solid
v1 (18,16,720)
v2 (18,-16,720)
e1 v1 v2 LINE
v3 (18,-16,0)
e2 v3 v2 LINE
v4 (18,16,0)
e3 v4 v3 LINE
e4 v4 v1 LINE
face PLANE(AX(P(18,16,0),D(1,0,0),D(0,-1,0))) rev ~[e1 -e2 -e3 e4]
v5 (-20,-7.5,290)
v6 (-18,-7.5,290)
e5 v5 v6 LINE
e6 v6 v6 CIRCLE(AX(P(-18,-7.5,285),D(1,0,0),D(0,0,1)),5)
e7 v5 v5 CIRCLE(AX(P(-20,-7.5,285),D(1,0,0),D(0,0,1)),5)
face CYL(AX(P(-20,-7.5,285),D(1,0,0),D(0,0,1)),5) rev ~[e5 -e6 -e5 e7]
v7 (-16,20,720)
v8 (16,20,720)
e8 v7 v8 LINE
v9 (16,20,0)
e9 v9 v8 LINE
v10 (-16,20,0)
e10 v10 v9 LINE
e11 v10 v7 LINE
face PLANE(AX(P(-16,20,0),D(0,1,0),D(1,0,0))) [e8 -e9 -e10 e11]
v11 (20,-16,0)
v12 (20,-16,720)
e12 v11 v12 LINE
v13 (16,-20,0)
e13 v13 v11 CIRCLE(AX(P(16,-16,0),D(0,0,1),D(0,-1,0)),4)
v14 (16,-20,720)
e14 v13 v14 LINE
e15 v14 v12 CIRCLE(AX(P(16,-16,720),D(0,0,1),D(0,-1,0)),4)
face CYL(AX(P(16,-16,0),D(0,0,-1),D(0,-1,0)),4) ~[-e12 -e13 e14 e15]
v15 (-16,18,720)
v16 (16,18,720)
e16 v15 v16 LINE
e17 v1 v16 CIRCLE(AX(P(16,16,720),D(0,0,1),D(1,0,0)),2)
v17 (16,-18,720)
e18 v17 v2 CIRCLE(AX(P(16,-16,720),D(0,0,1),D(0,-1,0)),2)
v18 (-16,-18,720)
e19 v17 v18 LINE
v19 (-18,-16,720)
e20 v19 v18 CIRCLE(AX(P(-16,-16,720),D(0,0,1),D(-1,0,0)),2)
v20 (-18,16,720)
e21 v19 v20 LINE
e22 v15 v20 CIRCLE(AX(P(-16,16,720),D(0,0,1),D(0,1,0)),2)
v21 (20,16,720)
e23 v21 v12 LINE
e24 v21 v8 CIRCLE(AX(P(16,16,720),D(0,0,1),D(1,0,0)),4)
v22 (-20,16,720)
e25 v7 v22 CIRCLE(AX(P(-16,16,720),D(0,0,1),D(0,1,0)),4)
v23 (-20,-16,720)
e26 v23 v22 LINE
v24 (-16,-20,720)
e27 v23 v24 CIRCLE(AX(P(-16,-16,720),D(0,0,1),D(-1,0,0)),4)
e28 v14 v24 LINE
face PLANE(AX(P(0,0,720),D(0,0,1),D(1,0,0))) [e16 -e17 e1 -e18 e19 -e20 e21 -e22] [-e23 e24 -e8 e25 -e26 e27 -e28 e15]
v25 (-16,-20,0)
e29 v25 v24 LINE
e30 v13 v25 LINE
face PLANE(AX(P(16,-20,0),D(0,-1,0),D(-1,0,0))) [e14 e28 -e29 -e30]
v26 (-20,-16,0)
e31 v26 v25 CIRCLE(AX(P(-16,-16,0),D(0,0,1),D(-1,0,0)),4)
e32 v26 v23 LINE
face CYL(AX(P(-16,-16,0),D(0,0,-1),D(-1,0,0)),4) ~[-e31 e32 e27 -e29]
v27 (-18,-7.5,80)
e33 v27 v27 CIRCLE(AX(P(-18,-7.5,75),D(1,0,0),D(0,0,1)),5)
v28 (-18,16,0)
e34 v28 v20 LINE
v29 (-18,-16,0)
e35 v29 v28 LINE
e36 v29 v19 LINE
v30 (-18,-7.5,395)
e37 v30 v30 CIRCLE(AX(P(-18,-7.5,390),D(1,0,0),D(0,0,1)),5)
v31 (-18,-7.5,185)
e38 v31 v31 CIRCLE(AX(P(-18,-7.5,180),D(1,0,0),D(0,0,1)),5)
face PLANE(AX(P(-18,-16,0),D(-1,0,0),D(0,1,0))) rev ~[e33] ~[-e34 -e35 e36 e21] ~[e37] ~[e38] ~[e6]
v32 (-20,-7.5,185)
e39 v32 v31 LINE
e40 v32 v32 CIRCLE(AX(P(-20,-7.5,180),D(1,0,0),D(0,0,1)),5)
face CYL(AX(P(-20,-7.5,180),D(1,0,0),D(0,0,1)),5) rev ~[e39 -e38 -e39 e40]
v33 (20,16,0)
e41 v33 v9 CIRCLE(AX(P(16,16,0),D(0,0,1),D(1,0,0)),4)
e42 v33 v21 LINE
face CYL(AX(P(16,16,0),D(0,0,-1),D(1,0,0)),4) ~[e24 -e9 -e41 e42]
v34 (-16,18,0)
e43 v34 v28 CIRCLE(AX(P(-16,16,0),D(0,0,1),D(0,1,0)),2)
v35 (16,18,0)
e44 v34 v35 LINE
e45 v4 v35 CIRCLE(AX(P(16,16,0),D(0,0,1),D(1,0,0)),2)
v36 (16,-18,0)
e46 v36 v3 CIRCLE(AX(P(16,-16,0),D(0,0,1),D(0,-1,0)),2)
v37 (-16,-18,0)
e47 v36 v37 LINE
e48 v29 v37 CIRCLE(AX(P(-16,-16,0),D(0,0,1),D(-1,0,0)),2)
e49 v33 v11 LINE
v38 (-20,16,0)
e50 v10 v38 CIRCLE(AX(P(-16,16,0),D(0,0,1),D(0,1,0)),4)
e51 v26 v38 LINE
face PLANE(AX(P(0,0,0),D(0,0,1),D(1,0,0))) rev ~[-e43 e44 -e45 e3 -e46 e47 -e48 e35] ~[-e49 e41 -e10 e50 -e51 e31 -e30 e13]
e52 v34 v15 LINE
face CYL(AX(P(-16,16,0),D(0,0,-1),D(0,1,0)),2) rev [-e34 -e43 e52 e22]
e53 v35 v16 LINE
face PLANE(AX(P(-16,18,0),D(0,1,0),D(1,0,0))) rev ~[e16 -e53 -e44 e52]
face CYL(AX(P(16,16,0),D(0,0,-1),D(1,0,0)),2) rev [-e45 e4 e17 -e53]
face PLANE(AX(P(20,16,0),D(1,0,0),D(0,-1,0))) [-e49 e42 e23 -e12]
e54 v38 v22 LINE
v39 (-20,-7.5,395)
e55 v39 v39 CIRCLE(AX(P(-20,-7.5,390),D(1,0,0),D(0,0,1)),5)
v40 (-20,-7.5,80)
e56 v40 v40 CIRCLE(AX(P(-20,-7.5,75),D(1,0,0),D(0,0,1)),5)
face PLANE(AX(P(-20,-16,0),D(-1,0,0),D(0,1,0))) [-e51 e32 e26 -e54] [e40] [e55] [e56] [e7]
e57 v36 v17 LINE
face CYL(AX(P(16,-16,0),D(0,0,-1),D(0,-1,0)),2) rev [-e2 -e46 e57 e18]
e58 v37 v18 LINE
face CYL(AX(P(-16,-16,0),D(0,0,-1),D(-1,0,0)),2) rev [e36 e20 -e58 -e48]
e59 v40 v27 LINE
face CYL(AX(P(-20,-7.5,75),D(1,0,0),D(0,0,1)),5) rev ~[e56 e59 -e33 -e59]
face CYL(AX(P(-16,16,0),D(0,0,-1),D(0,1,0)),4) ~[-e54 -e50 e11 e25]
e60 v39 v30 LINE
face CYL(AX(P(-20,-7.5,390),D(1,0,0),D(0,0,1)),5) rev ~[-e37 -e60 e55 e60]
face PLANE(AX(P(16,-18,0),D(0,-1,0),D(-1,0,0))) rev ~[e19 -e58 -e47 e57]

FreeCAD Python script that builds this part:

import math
import FreeCAD as App
import Part
import Sketcher
Q = App.Units.Quantity

doc = App.newDocument("Part")
params = doc.addObject("Spreadsheet::Sheet", "Params")
for row, (alias, value) in enumerate([
    ("sketch1_radius", "4 mm"),
    ("sketch1_radius2", "2 mm"),
    ("pad1_length", "720 mm"),
    ("sketch2_diameter", "10 mm"),
    ("hole_diameter", "10 mm"),
    ("hole_depth", "5 mm"),
], start=1):
    params.set(f"A{row}", alias)
    params.set(f"B{row}", "=" + value)
    params.setAlias(f"B{row}", alias)

body = doc.addObject("PartDesign::Body", "Body")

# Sketch on XY plane
sketch1 = doc.addObject("Sketcher::SketchObject", "Sketch")
body.addObject(sketch1)
sketch1.AttachmentSupport = (doc.XY_Plane, [""])
sketch1.MapMode = "FlatFace"
sketch1.addGeometry(Part.LineSegment(App.Vector(-20, 16, 0), App.Vector(-20, -16, 0)), False)
sketch1.addGeometry(Part.ArcOfCircle(Part.Circle(App.Vector(-16, -16, 0), App.Vector(0, 0, 1), 4), math.radians(180), math.radians(270)), False)
sketch1.addGeometry(Part.LineSegment(App.Vector(-16, -20, 0), App.Vector(16, -20, 0)), False)
sketch1.addGeometry(Part.ArcOfCircle(Part.Circle(App.Vector(16, -16, 0), App.Vector(0, 0, 1), 4), math.radians(-90), math.radians(0)), False)
sketch1.addGeometry(Part.LineSegment(App.Vector(20, -16, 0), App.Vector(20, 16, 0)), False)
sketch1.addGeometry(Part.ArcOfCircle(Part.Circle(App.Vector(16, 16, 0), App.Vector(0, 0, 1), 4), math.radians(0), math.radians(90)), False)
sketch1.addGeometry(Part.LineSegment(App.Vector(16, 20, 0), App.Vector(-16, 20, 0)), False)
sketch1.addGeometry(Part.ArcOfCircle(Part.Circle(App.Vector(-16, 16, 0), App.Vector(0, 0, 1), 4), math.radians(90), math.radians(180)), False)
sketch1.addGeometry(Part.ArcOfCircle(Part.Circle(App.Vector(-16, 16, 0), App.Vector(0, 0, 1), 2), math.radians(90), math.radians(180)), False)
sketch1.addGeometry(Part.LineSegment(App.Vector(-16, 18, 0), App.Vector(16, 18, 0)), False)
sketch1.addGeometry(Part.ArcOfCircle(Part.Circle(App.Vector(16, 16, 0), App.Vector(0, 0, 1), 2), math.radians(0), math.radians(90)), False)
sketch1.addGeometry(Part.LineSegment(App.Vector(18, 16, 0), App.Vector(18, -16, 0)), False)
sketch1.addGeometry(Part.ArcOfCircle(Part.Circle(App.Vector(16, -16, 0), App.Vector(0, 0, 1), 2), math.radians(-90), math.radians(0)), False)
sketch1.addGeometry(Part.LineSegment(App.Vector(16, -18, 0), App.Vector(-16, -18, 0)), False)
sketch1.addGeometry(Part.ArcOfCircle(Part.Circle(App.Vector(-16, -16, 0), App.Vector(0, 0, 1), 2), math.radians(180), math.radians(270)), False)
sketch1.addGeometry(Part.LineSegment(App.Vector(-18, -16, 0), App.Vector(-18, 16, 0)), False)
sketch1.addConstraint(Sketcher.Constraint("Tangent", 0, 2, 1, 1))
sketch1.addConstraint(Sketcher.Constraint("Tangent", 1, 2, 2, 1))
sketch1.addConstraint(Sketcher.Constraint("Tangent", 2, 2, 3, 1))
sketch1.addConstraint(Sketcher.Constraint("Tangent", 3, 2, 4, 1))
sketch1.addConstraint(Sketcher.Constraint("Tangent", 4, 2, 5, 1))
sketch1.addConstraint(Sketcher.Constraint("Tangent", 5, 2, 6, 1))
sketch1.addConstraint(Sketcher.Constraint("Tangent", 6, 2, 7, 1))
sketch1.addConstraint(Sketcher.Constraint("Tangent", 7, 2, 0, 1))
sketch1.addConstraint(Sketcher.Constraint("Tangent", 8, 1, 9, 1))
sketch1.addConstraint(Sketcher.Constraint("Tangent", 9, 2, 10, 2))
sketch1.addConstraint(Sketcher.Constraint("Tangent", 10, 1, 11, 1))
sketch1.addConstraint(Sketcher.Constraint("Tangent", 11, 2, 12, 2))
sketch1.addConstraint(Sketcher.Constraint("Tangent", 12, 1, 13, 1))
sketch1.addConstraint(Sketcher.Constraint("Tangent", 13, 2, 14, 2))
sketch1.addConstraint(Sketcher.Constraint("Tangent", 14, 1, 15, 1))
sketch1.addConstraint(Sketcher.Constraint("Tangent", 15, 2, 8, 2))
sketch1.addConstraint(Sketcher.Constraint("Vertical", 0))
sketch1.addConstraint(Sketcher.Constraint("Horizontal", 2))
sketch1.addConstraint(Sketcher.Constraint("Vertical", 4))
sketch1.addConstraint(Sketcher.Constraint("Horizontal", 6))
sketch1.addConstraint(Sketcher.Constraint("Horizontal", 9))
sketch1.addConstraint(Sketcher.Constraint("Vertical", 11))
sketch1.addConstraint(Sketcher.Constraint("Horizontal", 13))
sketch1.addConstraint(Sketcher.Constraint("Vertical", 15))
sketch1.addConstraint(Sketcher.Constraint("Coincident", 8, 3, 7, 3))
sketch1.addConstraint(Sketcher.Constraint("Coincident", 10, 3, 5, 3))
sketch1.addConstraint(Sketcher.Constraint("Coincident", 12, 3, 3, 3))
sketch1.addConstraint(Sketcher.Constraint("Equal", 1, 3))
sketch1.addConstraint(Sketcher.Constraint("Equal", 3, 5))
sketch1.addConstraint(Sketcher.Constraint("Equal", 5, 7))
sketch1.addConstraint(Sketcher.Constraint("Equal", 12, 14))
sketch1.addConstraint(Sketcher.Constraint("Symmetric", 1, 3, 5, 3, -1, 1))
sketch1.addConstraint(Sketcher.Constraint("Equal", 13, 0))
sketch1.addConstraint(Sketcher.Constraint("Radius", 1, Q("4 mm")))
sketch1.addConstraint(Sketcher.Constraint("Radius", 8, Q("2 mm")))
sketch1.addConstraint(Sketcher.Constraint("DistanceX", 0, 2, -1, 1, Q("20 mm")))
sketch1.setExpression("Constraints[33]", "Params.sketch1_radius")
sketch1.setExpression("Constraints[34]", "Params.sketch1_radius2")
pad1 = doc.addObject("PartDesign::Pad", "Pad")
body.addObject(pad1)
pad1.Profile = sketch1
pad1.setExpression("Length", "Params.pad1_length")

# Sketch on YZ plane
sketch2 = doc.addObject("Sketcher::SketchObject", "Sketch001")
body.addObject(sketch2)
sketch2.AttachmentSupport = (doc.YZ_Plane, [""])
sketch2.MapMode = "FlatFace"
sketch2.AttachmentOffset = App.Placement(App.Vector(0, 0, -20), App.Rotation())
sketch2.addGeometry(Part.Circle(App.Vector(-8, 75, 0), App.Vector(0, 0, 1), 5), False)
sketch2.addGeometry(Part.Circle(App.Vector(-8, 285, 0), App.Vector(0, 0, 1), 5), False)
sketch2.addGeometry(Part.Circle(App.Vector(-8, 390, 0), App.Vector(0, 0, 1), 5), False)
sketch2.addGeometry(Part.Circle(App.Vector(-8, 180, 0), App.Vector(0, 0, 1), 5), False)
sketch2.addConstraint(Sketcher.Constraint("Equal", 0, 1))
sketch2.addConstraint(Sketcher.Constraint("Equal", 1, 2))
sketch2.addConstraint(Sketcher.Constraint("Equal", 2, 3))
sketch2.addConstraint(Sketcher.Constraint("Vertical", 0, 3, 1, 3))
sketch2.addConstraint(Sketcher.Constraint("Vertical", 1, 3, 2, 3))
sketch2.addConstraint(Sketcher.Constraint("Vertical", 2, 3, 3, 3))
sketch2.addConstraint(Sketcher.Constraint("Diameter", 0, Q("10 mm")))
sketch2.addConstraint(Sketcher.Constraint("DistanceY", -1, 1, 0, 3, Q("75 mm")))
sketch2.addConstraint(Sketcher.Constraint("DistanceY", -1, 1, 1, 3, Q("285 mm")))
sketch2.addConstraint(Sketcher.Constraint("DistanceY", -1, 1, 2, 3, Q("390 mm")))
sketch2.addConstraint(Sketcher.Constraint("DistanceY", -1, 1, 3, 3, Q("180 mm")))
sketch2.addConstraint(Sketcher.Constraint("DistanceX", 0, 3, -1, 1, Q("7.5 mm")))
sketch2.setExpression("Constraints[6]", "Params.sketch2_diameter")
doc.recompute()
hole = doc.addObject("PartDesign::Hole", "Hole")
body.addObject(hole)
hole.Profile = sketch2
hole.ThreadType = "None"
hole.setExpression("Diameter", "Params.hole_diameter")
hole.DepthType = "Dimension"
hole.setExpression("Depth", "Params.hole_depth")
hole.DrillPoint = "Angled"
hole.DrillPointAngle = 118
hole.Reversed = True

doc.recompute()
